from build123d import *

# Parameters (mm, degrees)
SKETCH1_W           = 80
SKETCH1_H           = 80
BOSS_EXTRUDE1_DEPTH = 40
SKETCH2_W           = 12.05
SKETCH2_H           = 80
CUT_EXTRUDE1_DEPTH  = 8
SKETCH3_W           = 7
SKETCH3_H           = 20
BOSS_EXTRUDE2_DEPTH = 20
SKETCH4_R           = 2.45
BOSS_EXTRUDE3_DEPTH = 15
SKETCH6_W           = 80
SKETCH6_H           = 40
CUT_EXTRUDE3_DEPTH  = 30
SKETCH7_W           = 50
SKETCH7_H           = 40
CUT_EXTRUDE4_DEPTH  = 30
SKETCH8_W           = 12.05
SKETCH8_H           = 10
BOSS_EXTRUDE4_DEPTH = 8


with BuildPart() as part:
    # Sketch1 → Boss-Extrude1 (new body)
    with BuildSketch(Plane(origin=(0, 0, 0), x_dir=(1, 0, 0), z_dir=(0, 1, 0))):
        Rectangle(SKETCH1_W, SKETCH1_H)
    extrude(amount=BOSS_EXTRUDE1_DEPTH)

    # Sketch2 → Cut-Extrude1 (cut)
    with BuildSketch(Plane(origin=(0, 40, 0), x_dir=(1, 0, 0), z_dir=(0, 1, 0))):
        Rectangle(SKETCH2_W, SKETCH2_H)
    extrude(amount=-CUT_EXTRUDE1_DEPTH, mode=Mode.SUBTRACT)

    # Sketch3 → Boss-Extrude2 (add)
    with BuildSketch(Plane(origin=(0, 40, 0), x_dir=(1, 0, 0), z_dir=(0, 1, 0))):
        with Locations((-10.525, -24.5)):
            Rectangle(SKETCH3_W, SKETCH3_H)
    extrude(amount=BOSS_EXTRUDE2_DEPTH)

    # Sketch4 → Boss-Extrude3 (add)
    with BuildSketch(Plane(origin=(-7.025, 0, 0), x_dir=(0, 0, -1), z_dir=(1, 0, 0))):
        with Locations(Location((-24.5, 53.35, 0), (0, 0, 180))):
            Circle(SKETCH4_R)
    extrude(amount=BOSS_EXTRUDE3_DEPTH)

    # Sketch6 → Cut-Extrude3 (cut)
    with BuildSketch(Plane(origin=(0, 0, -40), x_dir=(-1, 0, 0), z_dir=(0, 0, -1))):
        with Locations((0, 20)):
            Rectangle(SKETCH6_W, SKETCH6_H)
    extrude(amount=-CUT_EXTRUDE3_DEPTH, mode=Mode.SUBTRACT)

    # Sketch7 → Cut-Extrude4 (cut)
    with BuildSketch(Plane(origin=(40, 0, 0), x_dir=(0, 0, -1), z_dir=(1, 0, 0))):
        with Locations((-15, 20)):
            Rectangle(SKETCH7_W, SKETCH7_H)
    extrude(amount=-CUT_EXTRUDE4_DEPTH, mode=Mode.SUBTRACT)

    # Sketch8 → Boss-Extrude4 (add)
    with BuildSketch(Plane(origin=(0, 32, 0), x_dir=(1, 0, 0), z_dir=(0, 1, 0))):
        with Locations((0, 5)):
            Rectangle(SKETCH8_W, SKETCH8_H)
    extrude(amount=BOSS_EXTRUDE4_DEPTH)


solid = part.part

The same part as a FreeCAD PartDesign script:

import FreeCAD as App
import Part
import Sketcher


def add_polygon(sketch, points):
    """Adds a closed chain of lines whose ends are joined by coincident constraints."""
    first, n = sketch.GeometryCount, len(points)
    for a, b in zip(points, points[1:] + points[:1]):
        sketch.addGeometry(Part.LineSegment(App.Vector(*a, 0), App.Vector(*b, 0)), False)
    for i in range(n):
        sketch.addConstraint(Sketcher.Constraint("Coincident", first + i, 2, first + (i + 1) % n, 1))

doc = App.newDocument("Part")
body = doc.addObject("PartDesign::Body", "Body")

sketch1 = body.newObject("Sketcher::SketchObject", "Sketch")
sketch1.AttachmentSupport = (doc.getObject("XZ_Plane"), [""])
sketch1.MapMode = "FlatFace"
add_polygon(sketch1, [(-40, -40), (-40, 40), (40, 40), (40, -40)])
sketch1.addConstraint(Sketcher.Constraint("Vertical", 0))
sketch1.addConstraint(Sketcher.Constraint("Horizontal", 1))
sketch1.addConstraint(Sketcher.Constraint("Vertical", 2))
sketch1.addConstraint(Sketcher.Constraint("Horizontal", 3))
sketch1.addConstraint(Sketcher.Constraint("Symmetric", 0, 2, 2, 2, -1, 1))
sketch1.addConstraint(Sketcher.Constraint("Equal", 3, 0))
sketch1.addConstraint(Sketcher.Constraint("DistanceX", 1, 1, 1, 2, 80.0))
pad1 = body.newObject("PartDesign::Pad", "Pad")
pad1.Profile = sketch1
pad1.Length = 40
pad1.Reversed = True

sketch2 = body.newObject("Sketcher::SketchObject", "Sketch001")
sketch2.AttachmentSupport = (doc.getObject("XZ_Plane"), [""])
sketch2.MapMode = "FlatFace"
sketch2.AttachmentOffset = App.Placement(App.Vector(0, 0, -40), App.Rotation())
add_polygon(sketch2, [(-6, -40), (-6, 40), (6, 40), (6, -40)])
sketch2.addConstraint(Sketcher.Constraint("Vertical", 0))
sketch2.addConstraint(Sketcher.Constraint("Horizontal", 1))
sketch2.addConstraint(Sketcher.Constraint("Vertical", 2))
sketch2.addConstraint(Sketcher.Constraint("Horizontal", 3))
sketch2.addConstraint(Sketcher.Constraint("Symmetric", 0, 2, 2, 2, -1, 1))
sketch2.addConstraint(Sketcher.Constraint("DistanceY", 0, 1, 0, 2, 80.0))
sketch2.addConstraint(Sketcher.Constraint("DistanceX", 1, 1, 1, 2, 12.05))
pocket1 = body.newObject("PartDesign::Pocket", "Pocket")
pocket1.Profile = sketch2
pocket1.Length = 8
pocket1.Reversed = True

sketch3 = body.newObject("Sketcher::SketchObject", "Sketch002")
sketch3.AttachmentSupport = (doc.getObject("XZ_Plane"), [""])
sketch3.MapMode = "FlatFace"
sketch3.AttachmentOffset = App.Placement(App.Vector(0, 0, -40), App.Rotation())
add_polygon(sketch3, [(-14, 14), (-14, 34), (-7, 34), (-7, 14)])
sketch3.addConstraint(Sketcher.Constraint("Vertical", 0))
sketch3.addConstraint(Sketcher.Constraint("Horizontal", 1))
sketch3.addConstraint(Sketcher.Constraint("Vertical", 2))
sketch3.addConstraint(Sketcher.Constraint("Horizontal", 3))
sketch3.addConstraint(Sketcher.Constraint("DistanceX", 1, 1, 1, 2, 7.0))
sketch3.addConstraint(Sketcher.Constraint("DistanceY", 0, 1, 0, 2, 20.0))
sketch3.addConstraint(Sketcher.Constraint("DistanceY", -1, 1, 0, 2, 34.5))
sketch3.addConstraint(Sketcher.Constraint("DistanceX", 0, 2, -1, 1, 14.025))
pad2 = body.newObject("PartDesign::Pad", "Pad001")
pad2.Profile = sketch3
pad2.Length = 20
pad2.Reversed = True

sketch4 = body.newObject("Sketcher::SketchObject", "Sketch003")
sketch4.AttachmentSupport = (doc.getObject("YZ_Plane"), [""])
sketch4.MapMode = "FlatFace"
sketch4.AttachmentOffset = App.Placement(App.Vector(0, 0, -7.025), App.Rotation())
sketch4.addGeometry(Part.Circle(App.Vector(53.4, 24.5, 0), App.Vector(0, 0, 1), 2.5), False)
sketch4.addConstraint(Sketcher.Constraint("Diameter", 0, 4.9))
sketch4.addConstraint(Sketcher.Constraint("DistanceY", -1, 1, 0, 3, 24.5))
sketch4.addConstraint(Sketcher.Constraint("DistanceX", -1, 1, 0, 3, 53.35))
pad3 = body.newObject("PartDesign::Pad", "Pad002")
pad3.Profile = sketch4
pad3.Length = 15

sketch5 = body.newObject("Sketcher::SketchObject", "Sketch004")
sketch5.AttachmentSupport = (doc.getObject("XY_Plane"), [""])
sketch5.MapMode = "FlatFace"
sketch5.AttachmentOffset = App.Placement(App.Vector(0, 0, -40), App.Rotation())
add_polygon(sketch5, [(40, 40), (40, 0), (-40, 0), (-40, 40)])
sketch5.addConstraint(Sketcher.Constraint("Vertical", 0))
sketch5.addConstraint(Sketcher.Constraint("Horizontal", 1))
sketch5.addConstraint(Sketcher.Constraint("Vertical", 2))
sketch5.addConstraint(Sketcher.Constraint("Horizontal", 3))
sketch5.addConstraint(Sketcher.Constraint("Symmetric", 0, 2, 1, 2, -1, 1))
sketch5.addConstraint(Sketcher.Constraint("DistanceX", 1, 2, 1, 1, 80.0))
sketch5.addConstraint(Sketcher.Constraint("DistanceY", 0, 2, 0, 1, 40.0))
pocket2 = body.newObject("PartDesign::Pocket", "Pocket001")
pocket2.Profile = sketch5
pocket2.Length = 30
pocket2.Reversed = True

sketch6 = body.newObject("Sketcher::SketchObject", "Sketch005")
sketch6.AttachmentSupport = (doc.getObject("YZ_Plane"), [""])
sketch6.MapMode = "FlatFace"
sketch6.AttachmentOffset = App.Placement(App.Vector(0, 0, 40), App.Rotation())
add_polygon(sketch6, [(40, 40), (0, 40), (0, -10), (40, -10)])
sketch6.addConstraint(Sketcher.Constraint("Horizontal", 0))
sketch6.addConstraint(Sketcher.Constraint("Vertical", 1))
sketch6.addConstraint(Sketcher.Constraint("Horizontal", 2))
sketch6.addConstraint(Sketcher.Constraint("Vertical", 3))
sketch6.addConstraint(Sketcher.Constraint("PointOnObject", 0, 2, -2))
sketch6.addConstraint(Sketcher.Constraint("DistanceX", 0, 2, 0, 1, 40.0))
sketch6.addConstraint(Sketcher.Constraint("DistanceY", 1, 2, 1, 1, 50.0))
sketch6.addConstraint(Sketcher.Constraint("DistanceY", -1, 1, 0, 2, 40.0))
pocket3 = body.newObject("PartDesign::Pocket", "Pocket002")
pocket3.Profile = sketch6
pocket3.Length = 30

sketch7 = body.newObject("Sketcher::SketchObject", "Sketch006")
sketch7.AttachmentSupport = (doc.getObject("XZ_Plane"), [""])
sketch7.MapMode = "FlatFace"
sketch7.AttachmentOffset = App.Placement(App.Vector(0, 0, -32), App.Rotation())
add_polygon(sketch7, [(-6, -10), (-6, 0), (6, 0), (6, -10)])
sketch7.addConstraint(Sketcher.Constraint("Vertical", 0))
sketch7.addConstraint(Sketcher.Constraint("Horizontal", 1))
sketch7.addConstraint(Sketcher.Constraint("Vertical", 2))
sketch7.addConstraint(Sketcher.Constraint("Horizontal", 3))
sketch7.addConstraint(Sketcher.Constraint("Symmetric", 0, 2, 1, 2, -1, 1))
sketch7.addConstraint(Sketcher.Constraint("DistanceY", 0, 1, 0, 2, 10.0))
sketch7.addConstraint(Sketcher.Constraint("DistanceX", 1, 1, 1, 2, 12.05))
pad4 = body.newObject("PartDesign::Pad", "Pad003")
pad4.Profile = sketch7
pad4.Length = 8
pad4.Reversed = True

doc.recompute()
